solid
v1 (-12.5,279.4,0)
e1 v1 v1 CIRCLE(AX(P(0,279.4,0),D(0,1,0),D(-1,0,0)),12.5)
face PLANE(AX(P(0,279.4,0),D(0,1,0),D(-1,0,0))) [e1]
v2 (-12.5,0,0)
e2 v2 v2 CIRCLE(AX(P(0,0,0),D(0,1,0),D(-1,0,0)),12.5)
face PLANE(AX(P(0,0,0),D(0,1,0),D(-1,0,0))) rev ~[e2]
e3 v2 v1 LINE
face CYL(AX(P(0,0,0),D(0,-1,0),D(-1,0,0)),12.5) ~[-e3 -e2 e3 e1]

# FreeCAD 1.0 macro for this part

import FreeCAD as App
import Part
import Sketcher
Q = App.Units.Quantity

doc = App.newDocument("Part")
body = doc.addObject("PartDesign::Body", "Body")

# Sketch on XZ plane
sketch1 = body.newObject("Sketcher::SketchObject", "Sketch")
sketch1.AttachmentSupport = (doc.getObject("XZ_Plane"), [""])
sketch1.MapMode = "FlatFace"
sketch1.addGeometry(Part.Circle(App.Vector(0, 0, 0), App.Vector(0, 0, 1), 12.5), False)
sketch1.addConstraint(Sketcher.Constraint("Coincident", 0, 3, -1, 1))
sketch1.addConstraint(Sketcher.Constraint("Diameter", 0, Q("25 mm")))
pad1 = body.newObject("PartDesign::Pad", "Pad")
pad1.Profile = sketch1
pad1.Length = 279.4
pad1.Reversed = True

doc.recompute()
